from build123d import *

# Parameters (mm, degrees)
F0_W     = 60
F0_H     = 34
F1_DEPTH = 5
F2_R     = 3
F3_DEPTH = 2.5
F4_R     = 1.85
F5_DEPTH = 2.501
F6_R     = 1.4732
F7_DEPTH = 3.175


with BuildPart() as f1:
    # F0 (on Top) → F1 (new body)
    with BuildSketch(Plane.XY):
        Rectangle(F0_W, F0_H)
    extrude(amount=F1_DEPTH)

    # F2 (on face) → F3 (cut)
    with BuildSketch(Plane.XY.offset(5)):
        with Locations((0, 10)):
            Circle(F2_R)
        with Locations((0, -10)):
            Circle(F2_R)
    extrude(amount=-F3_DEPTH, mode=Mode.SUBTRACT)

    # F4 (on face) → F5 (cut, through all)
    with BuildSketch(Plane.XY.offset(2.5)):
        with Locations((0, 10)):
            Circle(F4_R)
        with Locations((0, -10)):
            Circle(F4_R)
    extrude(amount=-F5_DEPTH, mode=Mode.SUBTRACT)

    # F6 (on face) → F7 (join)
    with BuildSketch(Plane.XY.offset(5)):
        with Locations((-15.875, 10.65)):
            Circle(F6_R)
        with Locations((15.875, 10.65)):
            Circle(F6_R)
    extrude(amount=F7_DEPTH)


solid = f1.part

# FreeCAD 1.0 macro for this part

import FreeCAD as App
import Part
import Sketcher
from FreeCAD import Vector
Q = App.Units.Quantity

doc = App.newDocument("Part")
body = doc.addObject("PartDesign::Body", "Body")

# Sketch on XY plane
sketch1 = body.newObject("Sketcher::SketchObject", "Sketch")
sketch1.AttachmentSupport = (doc.getObject("XY_Plane"), [""])
sketch1.MapMode = "FlatFace"
sketch1.addGeometry(Part.LineSegment(Vector(-30, 17, 0), Vector(-30, -17, 0)), False)
sketch1.addGeometry(Part.LineSegment(Vector(-30, -17, 0), Vector(30, -17, 0)), False)
sketch1.addGeometry(Part.LineSegment(Vector(30, -17, 0), Vector(30, 17, 0)), False)
sketch1.addGeometry(Part.LineSegment(Vector(30, 17, 0), Vector(-30, 17, 0)), False)
sketch1.addConstraint(Sketcher.Constraint("Coincident", 0, 2, 1, 1))
sketch1.addConstraint(Sketcher.Constraint("Coincident", 1, 2, 2, 1))
sketch1.addConstraint(Sketcher.Constraint("Coincident", 2, 2, 3, 1))
sketch1.addConstraint(Sketcher.Constraint("Coincident", 3, 2, 0, 1))
sketch1.addConstraint(Sketcher.Constraint("Vertical", 0))
sketch1.addConstraint(Sketcher.Constraint("Horizontal", 1))
sketch1.addConstraint(Sketcher.Constraint("Vertical", 2))
sketch1.addConstraint(Sketcher.Constraint("Horizontal", 3))
sketch1.addConstraint(Sketcher.Constraint("Symmetric", 0, 2, 2, 2, -1, 1))
sketch1.addConstraint(Sketcher.Constraint("DistanceX", 1, 1, 1, 2, Q("60 mm")))
sketch1.addConstraint(Sketcher.Constraint("DistanceY", 0, 2, 0, 1, Q("34 mm")))
pad1 = body.newObject("PartDesign::Pad", "Pad")
pad1.Profile = sketch1
pad1.Length = 5

# Sketch on XY plane
sketch2 = body.newObject("Sketcher::SketchObject", "Sketch001")
sketch2.AttachmentSupport = (doc.getObject("XY_Plane"), [""])
sketch2.MapMode = "FlatFace"
sketch2.AttachmentOffset = App.Placement(Vector(0, 0, 5), App.Rotation())
sketch2.addGeometry(Part.Circle(Vector(0, 10, 0), Vector(0, 0, 1), 3), False)
sketch2.addGeometry(Part.Circle(Vector(0, -10, 0), Vector(0, 0, 1), 3), False)
sketch2.addConstraint(Sketcher.Constraint("Equal", 0, 1))
sketch2.addConstraint(Sketcher.Constraint("Symmetric", 0, 3, 1, 3, -1, 1))
sketch2.addConstraint(Sketcher.Constraint("PointOnObject", 0, 3, -2))
sketch2.addConstraint(Sketcher.Constraint("Diameter", 0, Q("6 mm")))
sketch2.addConstraint(Sketcher.Constraint("DistanceY", -1, 1, 0, 3, Q("10 mm")))
pocket1 = body.newObject("PartDesign::Pocket", "Pocket")
pocket1.Profile = sketch2
pocket1.Length = 2.5

# Sketch on XY plane
sketch3 = body.newObject("Sketcher::SketchObject", "Sketch002")
sketch3.AttachmentSupport = (doc.getObject("XY_Plane"), [""])
sketch3.MapMode = "FlatFace"
sketch3.AttachmentOffset = App.Placement(Vector(0, 0, 2.5), App.Rotation())
sketch3.addGeometry(Part.Circle(Vector(0, 10, 0), Vector(0, 0, 1), 1.9), False)
sketch3.addGeometry(Part.Circle(Vector(0, -10, 0), Vector(0, 0, 1), 1.9), False)
sketch3.addConstraint(Sketcher.Constraint("Equal", 0, 1))
sketch3.addConstraint(Sketcher.Constraint("Symmetric", 0, 3, 1, 3, -1, 1))
sketch3.addConstraint(Sketcher.Constraint("PointOnObject", 0, 3, -2))
sketch3.addConstraint(Sketcher.Constraint("Diameter", 0, Q("3.7 mm")))
sketch3.addConstraint(Sketcher.Constraint("DistanceY", -1, 1, 0, 3, Q("10 mm")))
pocket2 = body.newObject("PartDesign::Pocket", "Pocket001")
pocket2.Profile = sketch3
pocket2.Type = "ThroughAll"

# Sketch on XY plane
sketch4 = body.newObject("Sketcher::SketchObject", "Sketch003")
sketch4.AttachmentSupport = (doc.getObject("XY_Plane"), [""])
sketch4.MapMode = "FlatFace"
sketch4.AttachmentOffset = App.Placement(Vector(0, 0, 5), App.Rotation())
sketch4.addGeometry(Part.Circle(Vector(-15.9, 10.7, 0), Vector(0, 0, 1), 1.5), False)
sketch4.addGeometry(Part.Circle(Vector(15.9, 10.7, 0), Vector(0, 0, 1), 1.5), False)
sketch4.addConstraint(Sketcher.Constraint("Equal", 0, 1))
sketch4.addConstraint(Sketcher.Constraint("Symmetric", 0, 3, 1, 3, -2))
sketch4.addConstraint(Sketcher.Constraint("Diameter", 0, Q("2.9464 mm")))
sketch4.addConstraint(Sketcher.Constraint("DistanceY", -1, 1, 0, 3, Q("10.65 mm")))
sketch4.addConstraint(Sketcher.Constraint("DistanceX", 0, 3, 1, 3, Q("31.75 mm")))
pad2 = body.newObject("PartDesign::Pad", "Pad001")
pad2.Profile = sketch4
pad2.Length = 3.175

doc.recompute()
